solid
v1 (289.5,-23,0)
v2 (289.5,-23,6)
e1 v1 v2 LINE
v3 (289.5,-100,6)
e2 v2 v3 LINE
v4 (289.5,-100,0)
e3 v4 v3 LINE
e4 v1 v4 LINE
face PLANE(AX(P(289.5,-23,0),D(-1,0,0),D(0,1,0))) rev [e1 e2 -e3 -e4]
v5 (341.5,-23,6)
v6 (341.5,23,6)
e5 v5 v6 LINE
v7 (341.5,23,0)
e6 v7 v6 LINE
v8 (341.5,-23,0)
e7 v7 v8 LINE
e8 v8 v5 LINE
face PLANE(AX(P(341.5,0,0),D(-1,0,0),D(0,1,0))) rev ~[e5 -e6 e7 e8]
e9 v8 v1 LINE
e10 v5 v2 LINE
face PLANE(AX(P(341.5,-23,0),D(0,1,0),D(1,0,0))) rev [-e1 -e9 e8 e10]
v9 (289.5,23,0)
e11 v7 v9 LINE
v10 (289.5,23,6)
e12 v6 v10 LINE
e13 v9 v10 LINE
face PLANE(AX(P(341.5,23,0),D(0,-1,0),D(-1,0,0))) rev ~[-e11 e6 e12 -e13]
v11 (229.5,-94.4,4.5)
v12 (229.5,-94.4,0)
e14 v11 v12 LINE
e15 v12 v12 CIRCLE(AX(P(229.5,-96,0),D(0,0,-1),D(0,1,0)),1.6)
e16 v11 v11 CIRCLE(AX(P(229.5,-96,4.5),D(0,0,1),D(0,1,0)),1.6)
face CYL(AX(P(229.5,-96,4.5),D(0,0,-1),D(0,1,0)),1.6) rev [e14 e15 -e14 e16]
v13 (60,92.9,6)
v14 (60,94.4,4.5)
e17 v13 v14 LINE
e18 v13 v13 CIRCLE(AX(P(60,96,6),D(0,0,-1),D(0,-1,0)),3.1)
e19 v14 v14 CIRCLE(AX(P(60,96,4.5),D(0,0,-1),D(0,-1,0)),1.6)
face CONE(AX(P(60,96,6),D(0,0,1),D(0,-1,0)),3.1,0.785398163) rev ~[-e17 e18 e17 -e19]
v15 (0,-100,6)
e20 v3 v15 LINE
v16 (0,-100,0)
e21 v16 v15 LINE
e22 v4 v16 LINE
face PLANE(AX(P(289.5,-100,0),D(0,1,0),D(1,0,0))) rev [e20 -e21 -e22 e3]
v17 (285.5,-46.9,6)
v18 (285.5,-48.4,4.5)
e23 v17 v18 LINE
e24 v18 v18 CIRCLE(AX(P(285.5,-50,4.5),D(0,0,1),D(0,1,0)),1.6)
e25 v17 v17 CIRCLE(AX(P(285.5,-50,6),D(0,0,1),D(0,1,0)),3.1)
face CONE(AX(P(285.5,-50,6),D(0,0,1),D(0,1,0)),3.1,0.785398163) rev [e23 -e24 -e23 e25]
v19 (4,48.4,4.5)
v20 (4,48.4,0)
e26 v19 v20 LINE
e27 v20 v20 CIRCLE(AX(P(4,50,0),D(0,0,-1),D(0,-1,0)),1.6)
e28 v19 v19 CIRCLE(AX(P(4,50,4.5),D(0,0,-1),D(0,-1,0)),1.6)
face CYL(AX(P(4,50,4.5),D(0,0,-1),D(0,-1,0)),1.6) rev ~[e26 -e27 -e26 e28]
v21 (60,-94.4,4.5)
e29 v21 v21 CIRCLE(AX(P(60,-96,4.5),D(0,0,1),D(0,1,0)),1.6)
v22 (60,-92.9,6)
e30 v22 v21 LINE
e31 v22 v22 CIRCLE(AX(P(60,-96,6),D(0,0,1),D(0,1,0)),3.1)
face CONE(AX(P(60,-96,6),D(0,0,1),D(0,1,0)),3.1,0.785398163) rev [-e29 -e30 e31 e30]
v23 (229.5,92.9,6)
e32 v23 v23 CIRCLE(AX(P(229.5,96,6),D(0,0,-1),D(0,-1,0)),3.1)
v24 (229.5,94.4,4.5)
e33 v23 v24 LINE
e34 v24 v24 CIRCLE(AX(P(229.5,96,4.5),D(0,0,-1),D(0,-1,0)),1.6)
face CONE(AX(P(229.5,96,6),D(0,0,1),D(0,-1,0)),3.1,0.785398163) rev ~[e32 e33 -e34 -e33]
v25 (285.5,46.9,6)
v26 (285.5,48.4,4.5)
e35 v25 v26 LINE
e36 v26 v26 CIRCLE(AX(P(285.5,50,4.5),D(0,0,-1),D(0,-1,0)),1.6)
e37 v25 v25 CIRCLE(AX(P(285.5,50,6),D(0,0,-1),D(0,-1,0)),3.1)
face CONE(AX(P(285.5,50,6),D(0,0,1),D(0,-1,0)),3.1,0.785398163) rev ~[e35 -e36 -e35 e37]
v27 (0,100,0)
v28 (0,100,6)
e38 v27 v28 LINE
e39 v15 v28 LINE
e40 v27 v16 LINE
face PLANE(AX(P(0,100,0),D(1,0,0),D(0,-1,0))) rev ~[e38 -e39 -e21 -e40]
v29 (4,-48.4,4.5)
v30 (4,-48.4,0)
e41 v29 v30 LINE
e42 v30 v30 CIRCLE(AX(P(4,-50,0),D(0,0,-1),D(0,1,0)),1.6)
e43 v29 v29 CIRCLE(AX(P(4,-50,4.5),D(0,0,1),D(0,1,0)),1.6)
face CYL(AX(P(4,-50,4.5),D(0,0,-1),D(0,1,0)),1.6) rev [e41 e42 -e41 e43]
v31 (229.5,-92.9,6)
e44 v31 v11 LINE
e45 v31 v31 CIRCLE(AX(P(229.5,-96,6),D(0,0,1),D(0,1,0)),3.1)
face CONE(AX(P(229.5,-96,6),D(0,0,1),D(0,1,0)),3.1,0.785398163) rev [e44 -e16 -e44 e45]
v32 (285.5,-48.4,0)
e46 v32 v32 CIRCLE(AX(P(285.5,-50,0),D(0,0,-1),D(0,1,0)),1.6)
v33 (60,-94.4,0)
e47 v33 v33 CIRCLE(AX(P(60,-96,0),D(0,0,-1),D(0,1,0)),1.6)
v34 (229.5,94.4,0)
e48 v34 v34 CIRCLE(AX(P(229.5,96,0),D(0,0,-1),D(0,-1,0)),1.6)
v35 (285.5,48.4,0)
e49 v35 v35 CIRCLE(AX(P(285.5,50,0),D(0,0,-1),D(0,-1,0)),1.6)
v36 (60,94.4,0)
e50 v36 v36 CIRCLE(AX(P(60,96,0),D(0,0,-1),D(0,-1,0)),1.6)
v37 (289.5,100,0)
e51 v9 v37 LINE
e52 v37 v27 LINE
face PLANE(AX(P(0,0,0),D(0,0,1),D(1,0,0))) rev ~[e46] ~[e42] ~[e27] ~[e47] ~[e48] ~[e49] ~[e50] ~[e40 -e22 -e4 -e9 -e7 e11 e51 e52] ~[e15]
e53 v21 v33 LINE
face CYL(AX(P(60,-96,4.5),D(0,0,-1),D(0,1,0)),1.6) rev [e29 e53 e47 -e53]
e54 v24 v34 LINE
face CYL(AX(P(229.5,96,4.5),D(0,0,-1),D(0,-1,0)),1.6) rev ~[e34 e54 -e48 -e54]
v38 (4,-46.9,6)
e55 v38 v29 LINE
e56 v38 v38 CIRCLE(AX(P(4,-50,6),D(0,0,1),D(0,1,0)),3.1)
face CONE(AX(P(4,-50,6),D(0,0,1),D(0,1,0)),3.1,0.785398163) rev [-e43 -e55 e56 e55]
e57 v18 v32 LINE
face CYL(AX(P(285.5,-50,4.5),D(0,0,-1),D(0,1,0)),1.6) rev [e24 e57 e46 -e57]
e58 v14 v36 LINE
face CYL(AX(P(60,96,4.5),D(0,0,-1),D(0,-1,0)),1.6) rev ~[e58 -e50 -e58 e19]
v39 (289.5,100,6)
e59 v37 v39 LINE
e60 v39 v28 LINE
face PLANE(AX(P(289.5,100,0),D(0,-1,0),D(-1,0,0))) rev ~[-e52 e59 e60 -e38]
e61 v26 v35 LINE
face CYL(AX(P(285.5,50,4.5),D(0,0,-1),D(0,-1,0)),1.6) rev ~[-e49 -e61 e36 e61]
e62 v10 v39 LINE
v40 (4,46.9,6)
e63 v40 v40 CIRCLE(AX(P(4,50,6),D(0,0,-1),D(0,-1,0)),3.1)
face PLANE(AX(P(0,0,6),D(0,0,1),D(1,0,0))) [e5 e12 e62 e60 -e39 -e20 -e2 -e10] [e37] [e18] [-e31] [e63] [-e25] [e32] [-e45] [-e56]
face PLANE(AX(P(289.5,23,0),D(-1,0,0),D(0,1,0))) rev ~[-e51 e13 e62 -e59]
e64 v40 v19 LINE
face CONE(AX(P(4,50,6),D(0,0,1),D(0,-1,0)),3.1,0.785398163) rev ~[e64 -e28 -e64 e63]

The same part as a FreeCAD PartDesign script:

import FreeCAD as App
import Part
import Sketcher


def add_polygon(sketch, points):
    """Adds a closed chain of lines whose ends are joined by coincident constraints."""
    first, n = sketch.GeometryCount, len(points)
    for a, b in zip(points, points[1:] + points[:1]):
        sketch.addGeometry(Part.LineSegment(App.Vector(*a, 0), App.Vector(*b, 0)), False)
    for i in range(n):
        sketch.addConstraint(Sketcher.Constraint("Coincident", first + i, 2, first + (i + 1) % n, 1))

doc = App.newDocument("Part")
body = doc.addObject("PartDesign::Body", "Body")

# Sketch on XY plane
sketch1 = doc.addObject("Sketcher::SketchObject", "Sketch")
body.addObject(sketch1)
sketch1.AttachmentSupport = (doc.XY_Plane, [""])
sketch1.MapMode = "FlatFace"
add_polygon(sketch1, [(290, 100), (0, 100), (0, 0), (342, 0), (342, 23), (290, 23)])  # lines 0-5
sketch1.addConstraint([
    Sketcher.Constraint("Horizontal", 0),
    Sketcher.Constraint("Vertical", 1),
    Sketcher.Constraint("Horizontal", 2),
    Sketcher.Constraint("Vertical", 3),
    Sketcher.Constraint("Horizontal", 4),
    Sketcher.Constraint("Vertical", 5),
    Sketcher.Constraint("Coincident", 1, 2, -1, 1),
    Sketcher.Constraint("DistanceX", 4, 2, 4, 1, 52.0),
    Sketcher.Constraint("DistanceY", 1, 2, 1, 1, 100.0),
    Sketcher.Constraint("DistanceY", 3, 1, 3, 2, 23.0),
    Sketcher.Constraint("DistanceX", 0, 2, 0, 1, 289.5),
])
pad1 = doc.addObject("PartDesign::Pad", "Pad")
body.addObject(pad1)
pad1.Profile = sketch1
pad1.Length = 6
doc.recompute()

mirrored = doc.addObject("PartDesign::Mirrored", "Mirrored")
body.addObject(mirrored)
mirrored.TransformMode = "Transform body"
mirrored.MirrorPlane = (doc.XZ_Plane, [""])
body.Tip = mirrored

# Sketch on XY plane
sketch2 = doc.addObject("Sketcher::SketchObject", "Sketch001")
body.addObject(sketch2)
sketch2.AttachmentSupport = (doc.XY_Plane, [""])
sketch2.MapMode = "FlatFace"
sketch2.AttachmentOffset = App.Placement(App.Vector(0, 0, 6), App.Rotation())
sketch2.addGeometry([
    Part.Circle(App.Vector(60, 96, 0), App.Vector(0, 0, 1), 1.6),
    Part.Circle(App.Vector(229.5, 96, 0), App.Vector(0, 0, 1), 1.6),
    Part.Circle(App.Vector(4, 50, 0), App.Vector(0, 0, 1), 1.6),
    Part.Circle(App.Vector(285.5, 50, 0), App.Vector(0, 0, 1), 1.6),
], False)
sketch2.addConstraint([
    Sketcher.Constraint("Equal", 0, 1),
    Sketcher.Constraint("Equal", 1, 2),
    Sketcher.Constraint("Equal", 2, 3),
    Sketcher.Constraint("Horizontal", 0, 3, 1, 3),
    Sketcher.Constraint("Horizontal", 2, 3, 3, 3),
    Sketcher.Constraint("Diameter", 0, 3.2),
    Sketcher.Constraint("DistanceX", -1, 1, 0, 3, 60.0),
    Sketcher.Constraint("DistanceY", -1, 1, 0, 3, 96.0),
    Sketcher.Constraint("DistanceX", -1, 1, 2, 3, 4.0),
    Sketcher.Constraint("DistanceY", -1, 1, 2, 3, 50.0),
    Sketcher.Constraint("DistanceX", 1, 3, 3, 3, 56.0),
    Sketcher.Constraint("DistanceX", -1, 1, 1, 3, 229.5),
])
doc.recompute()
hole = doc.addObject("PartDesign::Hole", "Hole")
body.addObject(hole)
hole.Profile = sketch2
hole.ThreadType = "None"
hole.Diameter = 3.2
hole.DepthType = "ThroughAll"
hole.HoleCutType = "Countersink"
hole.HoleCutDiameter = 6.2
hole.HoleCutCountersinkAngle = 90
doc.recompute()

mirrored2 = doc.addObject("PartDesign::Mirrored", "Mirrored001")
body.addObject(mirrored2)
mirrored2.Originals = [hole]
mirrored2.MirrorPlane = (doc.XZ_Plane, [""])
body.Tip = mirrored2

doc.recompute()
